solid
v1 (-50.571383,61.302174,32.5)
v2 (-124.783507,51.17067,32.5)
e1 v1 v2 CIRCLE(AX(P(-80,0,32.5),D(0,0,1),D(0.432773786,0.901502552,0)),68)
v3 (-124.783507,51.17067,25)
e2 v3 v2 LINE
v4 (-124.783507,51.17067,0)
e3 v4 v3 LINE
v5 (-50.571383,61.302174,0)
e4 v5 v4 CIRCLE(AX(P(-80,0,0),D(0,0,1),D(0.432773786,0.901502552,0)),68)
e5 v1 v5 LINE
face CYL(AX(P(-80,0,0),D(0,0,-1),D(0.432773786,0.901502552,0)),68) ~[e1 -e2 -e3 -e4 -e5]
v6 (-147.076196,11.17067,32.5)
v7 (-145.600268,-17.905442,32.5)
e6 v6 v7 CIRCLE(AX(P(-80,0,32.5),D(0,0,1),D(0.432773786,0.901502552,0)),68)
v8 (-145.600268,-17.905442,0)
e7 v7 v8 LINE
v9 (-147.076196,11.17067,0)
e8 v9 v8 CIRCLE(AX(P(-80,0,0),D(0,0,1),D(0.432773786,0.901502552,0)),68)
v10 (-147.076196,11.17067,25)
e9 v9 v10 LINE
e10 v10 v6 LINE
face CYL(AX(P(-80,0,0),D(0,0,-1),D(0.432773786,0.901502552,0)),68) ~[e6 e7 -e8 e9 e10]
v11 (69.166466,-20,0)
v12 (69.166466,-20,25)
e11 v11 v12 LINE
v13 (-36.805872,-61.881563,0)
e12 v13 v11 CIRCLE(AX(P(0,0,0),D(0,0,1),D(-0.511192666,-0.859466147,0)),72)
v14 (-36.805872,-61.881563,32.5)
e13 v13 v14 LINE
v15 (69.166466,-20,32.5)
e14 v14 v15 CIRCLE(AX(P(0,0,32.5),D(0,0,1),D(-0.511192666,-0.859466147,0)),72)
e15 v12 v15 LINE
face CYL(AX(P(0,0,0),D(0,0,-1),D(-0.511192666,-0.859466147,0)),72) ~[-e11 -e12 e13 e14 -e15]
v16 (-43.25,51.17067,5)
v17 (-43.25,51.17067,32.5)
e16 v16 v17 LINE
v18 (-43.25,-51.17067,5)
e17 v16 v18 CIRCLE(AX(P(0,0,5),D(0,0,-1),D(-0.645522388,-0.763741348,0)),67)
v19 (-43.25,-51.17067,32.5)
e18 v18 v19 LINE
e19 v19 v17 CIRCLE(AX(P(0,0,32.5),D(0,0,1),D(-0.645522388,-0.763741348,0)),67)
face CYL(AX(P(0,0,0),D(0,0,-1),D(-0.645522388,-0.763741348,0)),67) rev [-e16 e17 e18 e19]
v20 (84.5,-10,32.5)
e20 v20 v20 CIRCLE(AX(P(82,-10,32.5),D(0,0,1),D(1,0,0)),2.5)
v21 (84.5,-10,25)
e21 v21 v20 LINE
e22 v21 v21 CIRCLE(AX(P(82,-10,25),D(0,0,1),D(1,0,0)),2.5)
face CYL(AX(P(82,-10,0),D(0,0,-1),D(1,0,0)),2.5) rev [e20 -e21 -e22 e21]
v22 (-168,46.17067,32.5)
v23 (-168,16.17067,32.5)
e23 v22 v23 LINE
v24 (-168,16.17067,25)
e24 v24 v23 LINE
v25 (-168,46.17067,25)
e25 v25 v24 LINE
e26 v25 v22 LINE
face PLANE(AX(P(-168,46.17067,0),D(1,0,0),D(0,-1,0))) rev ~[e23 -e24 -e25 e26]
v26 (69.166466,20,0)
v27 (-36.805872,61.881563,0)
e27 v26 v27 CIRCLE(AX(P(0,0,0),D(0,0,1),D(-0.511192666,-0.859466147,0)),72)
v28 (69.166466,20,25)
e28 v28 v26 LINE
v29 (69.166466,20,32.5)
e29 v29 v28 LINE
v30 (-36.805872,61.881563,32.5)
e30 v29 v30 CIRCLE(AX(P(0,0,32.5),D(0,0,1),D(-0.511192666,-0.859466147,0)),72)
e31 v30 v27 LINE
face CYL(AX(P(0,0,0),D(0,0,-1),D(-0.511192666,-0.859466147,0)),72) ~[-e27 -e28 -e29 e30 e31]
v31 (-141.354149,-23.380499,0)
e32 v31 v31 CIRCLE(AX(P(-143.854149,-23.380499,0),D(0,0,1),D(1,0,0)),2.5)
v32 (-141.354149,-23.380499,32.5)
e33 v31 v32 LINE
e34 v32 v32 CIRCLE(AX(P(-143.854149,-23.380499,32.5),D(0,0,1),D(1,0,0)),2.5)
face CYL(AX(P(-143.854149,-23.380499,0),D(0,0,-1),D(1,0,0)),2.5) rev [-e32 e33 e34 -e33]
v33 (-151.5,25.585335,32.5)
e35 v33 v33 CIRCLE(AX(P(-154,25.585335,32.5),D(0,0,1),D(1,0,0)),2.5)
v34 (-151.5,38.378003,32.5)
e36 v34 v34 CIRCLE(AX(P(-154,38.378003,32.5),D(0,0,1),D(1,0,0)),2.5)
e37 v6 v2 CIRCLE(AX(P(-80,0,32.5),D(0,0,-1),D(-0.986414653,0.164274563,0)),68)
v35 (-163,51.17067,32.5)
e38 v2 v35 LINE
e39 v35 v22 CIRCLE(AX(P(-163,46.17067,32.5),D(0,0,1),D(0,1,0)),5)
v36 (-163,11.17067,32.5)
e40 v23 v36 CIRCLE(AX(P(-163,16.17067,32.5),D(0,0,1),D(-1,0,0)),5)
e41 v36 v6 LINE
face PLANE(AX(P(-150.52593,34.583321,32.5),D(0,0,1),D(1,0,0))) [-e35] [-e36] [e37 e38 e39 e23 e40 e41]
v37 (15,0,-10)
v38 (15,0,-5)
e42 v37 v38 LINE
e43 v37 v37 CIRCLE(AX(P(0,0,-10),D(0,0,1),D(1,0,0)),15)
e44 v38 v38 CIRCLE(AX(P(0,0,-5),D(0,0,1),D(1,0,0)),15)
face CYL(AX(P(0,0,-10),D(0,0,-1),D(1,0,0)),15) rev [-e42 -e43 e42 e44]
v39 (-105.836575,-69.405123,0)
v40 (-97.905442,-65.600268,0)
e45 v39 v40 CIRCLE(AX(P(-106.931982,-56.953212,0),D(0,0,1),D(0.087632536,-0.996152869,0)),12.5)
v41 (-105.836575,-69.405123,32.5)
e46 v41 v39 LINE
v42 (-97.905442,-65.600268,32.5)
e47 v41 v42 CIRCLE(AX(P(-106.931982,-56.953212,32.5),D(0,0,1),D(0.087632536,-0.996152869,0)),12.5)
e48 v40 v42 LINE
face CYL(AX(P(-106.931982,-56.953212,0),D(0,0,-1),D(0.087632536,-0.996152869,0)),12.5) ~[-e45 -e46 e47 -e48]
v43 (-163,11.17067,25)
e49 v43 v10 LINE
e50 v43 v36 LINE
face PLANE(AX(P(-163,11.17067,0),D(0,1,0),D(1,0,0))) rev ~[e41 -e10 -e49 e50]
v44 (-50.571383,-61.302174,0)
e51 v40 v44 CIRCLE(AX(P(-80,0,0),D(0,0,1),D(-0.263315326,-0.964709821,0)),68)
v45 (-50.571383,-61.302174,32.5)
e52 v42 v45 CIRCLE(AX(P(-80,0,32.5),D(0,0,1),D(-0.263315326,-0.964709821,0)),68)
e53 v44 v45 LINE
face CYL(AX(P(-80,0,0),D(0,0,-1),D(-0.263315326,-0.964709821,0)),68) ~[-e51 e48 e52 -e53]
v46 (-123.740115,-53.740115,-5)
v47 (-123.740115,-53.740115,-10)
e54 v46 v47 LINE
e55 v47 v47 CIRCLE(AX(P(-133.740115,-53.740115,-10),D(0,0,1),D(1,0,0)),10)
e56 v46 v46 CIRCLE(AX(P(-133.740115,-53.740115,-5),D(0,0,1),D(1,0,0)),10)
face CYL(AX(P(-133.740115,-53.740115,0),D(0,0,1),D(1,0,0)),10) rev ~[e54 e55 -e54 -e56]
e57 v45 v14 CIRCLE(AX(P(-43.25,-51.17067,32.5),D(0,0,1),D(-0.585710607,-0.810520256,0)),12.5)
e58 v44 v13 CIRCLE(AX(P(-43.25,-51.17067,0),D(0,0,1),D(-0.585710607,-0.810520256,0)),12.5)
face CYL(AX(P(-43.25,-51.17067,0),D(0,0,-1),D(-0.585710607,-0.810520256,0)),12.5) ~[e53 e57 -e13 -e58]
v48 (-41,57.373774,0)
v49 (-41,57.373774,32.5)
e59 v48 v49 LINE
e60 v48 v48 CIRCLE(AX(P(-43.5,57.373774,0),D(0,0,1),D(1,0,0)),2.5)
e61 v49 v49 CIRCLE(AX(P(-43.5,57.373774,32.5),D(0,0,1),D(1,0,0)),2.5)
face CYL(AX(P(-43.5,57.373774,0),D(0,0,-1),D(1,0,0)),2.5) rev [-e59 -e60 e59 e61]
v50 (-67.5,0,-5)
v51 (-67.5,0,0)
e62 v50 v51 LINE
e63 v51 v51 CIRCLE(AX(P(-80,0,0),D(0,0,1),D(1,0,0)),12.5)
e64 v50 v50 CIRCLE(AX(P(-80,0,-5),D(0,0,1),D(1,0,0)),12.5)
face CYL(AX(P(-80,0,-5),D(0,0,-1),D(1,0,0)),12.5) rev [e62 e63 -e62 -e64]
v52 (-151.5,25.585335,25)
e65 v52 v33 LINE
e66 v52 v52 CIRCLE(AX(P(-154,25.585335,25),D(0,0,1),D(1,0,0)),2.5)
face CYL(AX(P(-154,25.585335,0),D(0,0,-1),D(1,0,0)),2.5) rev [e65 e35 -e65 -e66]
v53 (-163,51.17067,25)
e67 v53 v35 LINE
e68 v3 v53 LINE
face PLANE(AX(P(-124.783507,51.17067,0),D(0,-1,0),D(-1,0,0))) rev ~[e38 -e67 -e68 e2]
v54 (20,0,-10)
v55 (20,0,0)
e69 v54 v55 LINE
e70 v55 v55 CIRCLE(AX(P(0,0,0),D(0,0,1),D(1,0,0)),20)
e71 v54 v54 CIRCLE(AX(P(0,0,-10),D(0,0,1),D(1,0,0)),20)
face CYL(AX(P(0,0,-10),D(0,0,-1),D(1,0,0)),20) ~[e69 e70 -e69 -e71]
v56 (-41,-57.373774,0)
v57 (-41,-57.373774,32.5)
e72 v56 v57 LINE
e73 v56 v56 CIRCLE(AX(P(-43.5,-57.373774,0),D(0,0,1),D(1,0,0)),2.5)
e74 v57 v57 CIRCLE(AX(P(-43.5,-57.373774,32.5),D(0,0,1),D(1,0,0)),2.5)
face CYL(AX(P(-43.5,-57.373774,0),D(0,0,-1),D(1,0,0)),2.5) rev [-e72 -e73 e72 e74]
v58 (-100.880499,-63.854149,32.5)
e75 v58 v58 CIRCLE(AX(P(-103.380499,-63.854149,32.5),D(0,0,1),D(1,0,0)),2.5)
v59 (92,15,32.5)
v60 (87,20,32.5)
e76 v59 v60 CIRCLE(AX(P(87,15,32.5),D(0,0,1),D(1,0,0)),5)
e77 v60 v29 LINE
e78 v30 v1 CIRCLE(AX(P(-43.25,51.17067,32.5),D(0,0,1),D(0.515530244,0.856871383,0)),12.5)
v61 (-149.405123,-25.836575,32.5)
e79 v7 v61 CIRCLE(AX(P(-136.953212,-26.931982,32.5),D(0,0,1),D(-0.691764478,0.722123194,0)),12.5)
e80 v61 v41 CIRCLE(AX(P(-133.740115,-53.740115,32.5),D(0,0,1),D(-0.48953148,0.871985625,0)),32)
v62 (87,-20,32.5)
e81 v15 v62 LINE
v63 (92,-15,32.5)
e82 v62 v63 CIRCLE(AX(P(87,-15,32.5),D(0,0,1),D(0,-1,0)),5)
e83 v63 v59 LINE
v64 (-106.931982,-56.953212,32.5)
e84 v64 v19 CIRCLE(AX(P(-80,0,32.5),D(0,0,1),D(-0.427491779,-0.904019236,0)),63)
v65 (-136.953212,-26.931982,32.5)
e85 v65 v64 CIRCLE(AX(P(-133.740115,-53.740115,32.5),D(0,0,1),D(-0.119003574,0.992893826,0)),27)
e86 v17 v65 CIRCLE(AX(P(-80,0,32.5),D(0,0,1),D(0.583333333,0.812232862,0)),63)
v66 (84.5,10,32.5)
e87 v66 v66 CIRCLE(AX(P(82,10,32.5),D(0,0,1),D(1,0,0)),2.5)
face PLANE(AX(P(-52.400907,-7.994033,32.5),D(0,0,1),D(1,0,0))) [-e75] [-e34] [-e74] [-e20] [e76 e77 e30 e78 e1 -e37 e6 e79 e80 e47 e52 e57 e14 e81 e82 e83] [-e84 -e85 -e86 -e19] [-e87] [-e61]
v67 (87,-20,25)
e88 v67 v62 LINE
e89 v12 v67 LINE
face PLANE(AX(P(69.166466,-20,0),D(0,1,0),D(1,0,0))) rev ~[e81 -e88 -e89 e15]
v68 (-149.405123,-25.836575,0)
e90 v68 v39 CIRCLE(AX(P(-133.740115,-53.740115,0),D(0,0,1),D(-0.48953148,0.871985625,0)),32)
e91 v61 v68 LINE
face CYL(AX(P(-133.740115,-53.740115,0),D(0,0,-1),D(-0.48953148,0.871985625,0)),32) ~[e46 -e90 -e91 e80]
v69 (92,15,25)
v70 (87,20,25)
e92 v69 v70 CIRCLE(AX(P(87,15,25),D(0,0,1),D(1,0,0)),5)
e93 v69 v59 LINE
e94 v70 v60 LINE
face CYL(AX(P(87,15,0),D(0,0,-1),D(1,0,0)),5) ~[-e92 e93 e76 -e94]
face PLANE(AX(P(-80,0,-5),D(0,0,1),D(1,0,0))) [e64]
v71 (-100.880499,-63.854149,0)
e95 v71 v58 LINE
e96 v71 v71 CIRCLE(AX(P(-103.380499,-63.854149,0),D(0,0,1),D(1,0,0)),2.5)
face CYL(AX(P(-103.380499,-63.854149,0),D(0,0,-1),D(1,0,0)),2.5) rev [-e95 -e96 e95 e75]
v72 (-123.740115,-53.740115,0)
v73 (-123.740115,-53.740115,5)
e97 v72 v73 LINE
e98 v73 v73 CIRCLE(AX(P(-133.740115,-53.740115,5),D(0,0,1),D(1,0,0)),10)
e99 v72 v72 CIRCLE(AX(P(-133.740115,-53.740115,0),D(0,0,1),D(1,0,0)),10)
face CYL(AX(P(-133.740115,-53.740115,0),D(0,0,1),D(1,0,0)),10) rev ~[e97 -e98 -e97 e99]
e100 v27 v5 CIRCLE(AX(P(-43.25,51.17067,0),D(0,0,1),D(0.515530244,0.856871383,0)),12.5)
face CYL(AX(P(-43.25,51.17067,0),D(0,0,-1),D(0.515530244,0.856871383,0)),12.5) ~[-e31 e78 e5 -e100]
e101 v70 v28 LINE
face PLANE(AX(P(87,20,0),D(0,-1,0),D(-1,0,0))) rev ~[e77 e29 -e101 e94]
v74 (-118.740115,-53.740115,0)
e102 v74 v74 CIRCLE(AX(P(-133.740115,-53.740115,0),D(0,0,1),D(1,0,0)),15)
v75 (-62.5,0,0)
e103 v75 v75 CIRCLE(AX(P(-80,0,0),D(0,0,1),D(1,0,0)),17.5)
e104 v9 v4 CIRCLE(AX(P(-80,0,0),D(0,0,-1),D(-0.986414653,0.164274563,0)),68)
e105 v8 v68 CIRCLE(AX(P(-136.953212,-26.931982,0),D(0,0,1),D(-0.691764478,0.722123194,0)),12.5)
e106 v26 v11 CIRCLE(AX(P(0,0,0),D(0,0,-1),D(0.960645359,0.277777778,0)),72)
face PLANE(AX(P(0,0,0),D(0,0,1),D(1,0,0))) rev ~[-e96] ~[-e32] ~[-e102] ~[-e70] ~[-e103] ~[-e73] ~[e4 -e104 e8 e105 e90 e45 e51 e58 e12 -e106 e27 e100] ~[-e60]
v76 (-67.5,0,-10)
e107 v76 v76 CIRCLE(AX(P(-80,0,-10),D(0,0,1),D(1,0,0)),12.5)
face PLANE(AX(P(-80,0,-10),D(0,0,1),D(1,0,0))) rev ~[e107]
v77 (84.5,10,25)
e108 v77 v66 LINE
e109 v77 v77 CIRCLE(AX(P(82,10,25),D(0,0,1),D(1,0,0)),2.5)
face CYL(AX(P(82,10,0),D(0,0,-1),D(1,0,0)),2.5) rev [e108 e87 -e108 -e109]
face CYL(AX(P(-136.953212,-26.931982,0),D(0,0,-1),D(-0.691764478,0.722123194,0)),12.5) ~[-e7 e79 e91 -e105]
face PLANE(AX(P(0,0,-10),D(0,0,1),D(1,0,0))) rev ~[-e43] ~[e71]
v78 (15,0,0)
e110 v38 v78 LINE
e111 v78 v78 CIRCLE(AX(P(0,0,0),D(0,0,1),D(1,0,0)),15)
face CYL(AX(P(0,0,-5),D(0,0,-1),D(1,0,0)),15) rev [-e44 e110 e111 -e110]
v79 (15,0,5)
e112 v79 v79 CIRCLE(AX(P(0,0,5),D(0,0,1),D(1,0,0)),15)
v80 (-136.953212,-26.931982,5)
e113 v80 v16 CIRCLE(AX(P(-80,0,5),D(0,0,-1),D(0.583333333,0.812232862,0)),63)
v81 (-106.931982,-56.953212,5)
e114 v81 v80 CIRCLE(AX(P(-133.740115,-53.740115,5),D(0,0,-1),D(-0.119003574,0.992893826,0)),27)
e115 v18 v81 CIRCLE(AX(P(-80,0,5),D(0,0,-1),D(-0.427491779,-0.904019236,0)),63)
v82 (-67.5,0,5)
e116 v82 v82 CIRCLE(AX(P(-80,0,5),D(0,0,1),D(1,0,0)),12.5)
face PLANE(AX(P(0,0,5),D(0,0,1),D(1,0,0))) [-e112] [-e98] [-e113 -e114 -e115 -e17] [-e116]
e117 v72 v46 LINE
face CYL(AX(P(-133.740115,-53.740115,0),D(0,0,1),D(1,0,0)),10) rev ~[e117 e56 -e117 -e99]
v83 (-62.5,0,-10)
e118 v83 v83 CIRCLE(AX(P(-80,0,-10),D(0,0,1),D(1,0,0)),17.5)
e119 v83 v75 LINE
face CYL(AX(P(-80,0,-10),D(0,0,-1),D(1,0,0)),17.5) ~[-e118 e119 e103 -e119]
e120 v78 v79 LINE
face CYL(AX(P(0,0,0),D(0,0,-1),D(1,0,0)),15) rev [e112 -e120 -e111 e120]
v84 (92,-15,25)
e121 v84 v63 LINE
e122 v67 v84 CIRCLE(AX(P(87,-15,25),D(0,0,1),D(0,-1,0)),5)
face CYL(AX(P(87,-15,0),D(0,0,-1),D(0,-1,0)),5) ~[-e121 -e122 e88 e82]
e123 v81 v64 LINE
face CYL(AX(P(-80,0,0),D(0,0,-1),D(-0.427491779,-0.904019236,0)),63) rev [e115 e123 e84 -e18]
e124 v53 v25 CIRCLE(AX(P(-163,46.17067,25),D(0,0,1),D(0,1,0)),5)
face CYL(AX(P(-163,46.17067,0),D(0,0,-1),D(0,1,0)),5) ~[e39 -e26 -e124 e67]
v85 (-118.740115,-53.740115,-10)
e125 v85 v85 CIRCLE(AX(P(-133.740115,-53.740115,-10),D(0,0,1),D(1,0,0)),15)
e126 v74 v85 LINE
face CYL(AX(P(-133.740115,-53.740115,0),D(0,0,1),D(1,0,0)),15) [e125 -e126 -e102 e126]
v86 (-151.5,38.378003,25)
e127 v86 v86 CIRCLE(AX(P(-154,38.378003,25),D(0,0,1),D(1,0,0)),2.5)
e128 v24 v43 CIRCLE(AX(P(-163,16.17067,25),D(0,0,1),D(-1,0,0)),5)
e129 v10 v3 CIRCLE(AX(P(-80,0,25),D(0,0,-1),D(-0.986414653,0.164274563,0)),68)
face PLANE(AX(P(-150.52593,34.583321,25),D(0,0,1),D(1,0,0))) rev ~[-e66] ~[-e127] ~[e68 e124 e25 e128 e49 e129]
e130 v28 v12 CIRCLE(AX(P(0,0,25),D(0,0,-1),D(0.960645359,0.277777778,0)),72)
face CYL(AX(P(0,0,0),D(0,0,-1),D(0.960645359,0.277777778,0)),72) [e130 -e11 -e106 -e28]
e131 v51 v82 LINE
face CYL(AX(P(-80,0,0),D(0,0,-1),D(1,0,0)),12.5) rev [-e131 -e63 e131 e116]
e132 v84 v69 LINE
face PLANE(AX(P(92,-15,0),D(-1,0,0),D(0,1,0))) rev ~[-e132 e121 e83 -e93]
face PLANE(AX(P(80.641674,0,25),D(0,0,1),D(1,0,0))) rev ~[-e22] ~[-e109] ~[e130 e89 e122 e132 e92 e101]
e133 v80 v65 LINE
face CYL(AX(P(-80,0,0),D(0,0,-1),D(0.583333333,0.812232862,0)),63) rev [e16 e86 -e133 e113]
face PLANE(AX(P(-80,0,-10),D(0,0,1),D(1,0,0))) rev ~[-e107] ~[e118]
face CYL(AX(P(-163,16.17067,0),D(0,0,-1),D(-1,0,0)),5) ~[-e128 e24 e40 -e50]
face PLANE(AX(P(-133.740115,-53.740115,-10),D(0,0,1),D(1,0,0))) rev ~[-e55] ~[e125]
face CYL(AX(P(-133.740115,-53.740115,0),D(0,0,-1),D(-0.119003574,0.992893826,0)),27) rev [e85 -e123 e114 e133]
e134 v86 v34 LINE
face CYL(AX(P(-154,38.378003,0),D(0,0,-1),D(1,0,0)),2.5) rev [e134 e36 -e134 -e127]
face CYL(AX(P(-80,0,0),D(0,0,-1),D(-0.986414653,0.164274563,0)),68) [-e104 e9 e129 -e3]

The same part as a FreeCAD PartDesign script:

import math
import FreeCAD as App
import Part
import Sketcher

doc = App.newDocument("Part")
params = doc.addObject("Spreadsheet::Sheet", "Params")
for row, (alias, value) in enumerate([
    ("sketch1_diameter", "5 mm"),
    ("sketch1_diameter2", "25 mm"),
    ("sketch1_diameter3", "30 mm"),
    ("sketch1_radius", "68 mm"),
    ("sketch1_radius2", "72 mm"),
    ("pad1_length", "5 mm"),
    ("sketch2_diameter", "5 mm"),
    ("sketch2_radius", "68 mm"),
    ("sketch2_radius2", "72 mm"),
    ("sketch2_radius3", "5 mm"),
    ("sketch2_radius4", "32 mm"),
    ("pad2_length", "32.5 mm"),
    ("sketch3_diameter", "5 mm"),
    ("sketch3_radius", "5 mm"),
    ("sketch3_radius2", "72 mm"),
    ("sketch3_height", "30 mm"),
    ("pocket1_length", "25 mm"),
    ("sketch4_diameter", "35 mm"),
    ("sketch4_diameter2", "40 mm"),
    ("pad3_length", "10 mm"),
    ("sketch5_diameter", "25 mm"),
    ("sketch5_diameter2", "30 mm"),
    ("pocket2_length", "5 mm"),
    ("sketch6_diameter", "30 mm"),
    ("sketch6_diameter2", "20 mm"),
    ("pad4_length", "10 mm"),
    ("sketch7_diameter", "20 mm"),
    ("pocket3_length", "10 mm"),
    ("sketch8_diameter", "30 mm"),
    ("pocket4_length", "10 mm"),
    ("sketch9_diameter", "5 mm"),
    ("sketch9_radius", "68 mm"),
    ("sketch9_radius2", "5 mm"),
    ("sketch9_height", "30 mm"),
    ("pad5_length", "32.5 mm"),
    ("sketch10_diameter", "5 mm"),
    ("sketch10_radius", "68 mm"),
    ("sketch10_radius2", "5 mm"),
    ("sketch10_height", "30 mm"),
    ("pocket5_length", "25 mm"),
], start=1):
    params.set(f"A{row}", alias)
    params.set(f"B{row}", "=" + value)
    params.setAlias(f"B{row}", alias)

body = doc.addObject("PartDesign::Body", "Body")

sketch1 = body.newObject("Sketcher::SketchObject", "Sketch")
sketch1.AttachmentSupport = (doc.getObject("XY_Plane"), [""])
sketch1.MapMode = "FlatFace"
sketch1.addGeometry([
    Part.ArcOfCircle(Part.Circle(App.Vector(-106.931982, -56.953212, 0), App.Vector(0, 0, 1), 12.5), math.radians(-84.972577), math.radians(-43.769945)),
    Part.ArcOfCircle(Part.Circle(App.Vector(-80, 0, 0), App.Vector(0, 0, 1), 68), math.radians(-105.266873), math.radians(-64.356279)),
    Part.ArcOfCircle(Part.Circle(App.Vector(-43.25, -51.17067, 0), App.Vector(0, 0, 1), 12.5), math.radians(-125.853207), math.radians(-58.967096)),
    Part.ArcOfCircle(Part.Circle(App.Vector(0, 0, 0), App.Vector(0, 0, 1), 72), math.radians(-120.743305), math.radians(120.743305)),
    Part.ArcOfCircle(Part.Circle(App.Vector(-43.25, 51.17067, 0), App.Vector(0, 0, 1), 12.5), math.radians(58.967096), math.radians(125.853207)),
    Part.ArcOfCircle(Part.Circle(App.Vector(-80, 0, 0), App.Vector(0, 0, 1), 68), math.radians(64.356279), math.radians(195.266873)),
    Part.ArcOfCircle(Part.Circle(App.Vector(-136.953212, -26.931982, 0), App.Vector(0, 0, 1), 12.5), math.radians(133.769945), math.radians(174.972577)),
    Part.ArcOfCircle(Part.Circle(App.Vector(-133.740115, -53.740115, 0), App.Vector(0, 0, 1), 32), math.radians(119.309792), math.radians(330.690208)),
    Part.Circle(App.Vector(-103.380499, -63.854149, 0), App.Vector(0, 0, 1), 2.5),
    Part.Circle(App.Vector(-143.854149, -23.380499, 0), App.Vector(0, 0, 1), 2.5),
    Part.Circle(App.Vector(-43.5, -57.373774, 0), App.Vector(0, 0, 1), 2.5),
    Part.Circle(App.Vector(-43.5, 57.373774, 0), App.Vector(0, 0, 1), 2.5),
    Part.Circle(App.Vector(-80, 0, 0), App.Vector(0, 0, 1), 12.5),
    Part.Circle(App.Vector(0, 0, 0), App.Vector(0, 0, 1), 15),
], False)
sketch1.addConstraint([
    Sketcher.Constraint("Coincident", 0, 2, 1, 1),
    Sketcher.Constraint("Coincident", 1, 2, 2, 1),
    Sketcher.Constraint("Coincident", 2, 2, 3, 1),
    Sketcher.Constraint("Coincident", 3, 2, 4, 1),
    Sketcher.Constraint("Coincident", 4, 2, 5, 1),
    Sketcher.Constraint("Coincident", 5, 2, 6, 1),
    Sketcher.Constraint("Coincident", 6, 2, 7, 1),
    Sketcher.Constraint("Coincident", 7, 2, 0, 1),
    Sketcher.Constraint("Coincident", 3, 3, -1, 1),
    Sketcher.Constraint("Coincident", 13, 3, -1, 1),
    Sketcher.Constraint("Coincident", 5, 3, 1, 3),
    Sketcher.Constraint("Coincident", 12, 3, 1, 3),
    Sketcher.Constraint("Equal", 0, 2),
    Sketcher.Constraint("Equal", 2, 4),
    Sketcher.Constraint("Equal", 1, 5),
    Sketcher.Constraint("Equal", 4, 6),
    Sketcher.Constraint("Equal", 8, 9),
    Sketcher.Constraint("Equal", 9, 10),
    Sketcher.Constraint("Equal", 10, 11),
    Sketcher.Constraint("Equal", 6, 12),
    Sketcher.Constraint("Symmetric", 2, 3, 4, 3, -1),
    Sketcher.Constraint("Symmetric", 10, 3, 11, 3, -1),
    Sketcher.Constraint("PointOnObject", 1, 3, -1),
    Sketcher.Constraint("Diameter", 8, 5.0),
    Sketcher.Constraint("Diameter", 12, 25.0),
    Sketcher.Constraint("Diameter", 13, 30.0),
    Sketcher.Constraint("Radius", 1, 68.0),
    Sketcher.Constraint("Radius", 3, 72.0),
    Sketcher.Constraint("Radius", 7, 32.0),
    Sketcher.Constraint("DistanceX", 1, 3, -1, 1, 80.0),
    Sketcher.Constraint("DistanceX", 10, 3, -1, 1, 43.5),
    Sketcher.Constraint("DistanceX", 2, 3, -1, 1, 43.25),
    Sketcher.Constraint("DistanceX", 8, 3, -1, 1, 103.380499),
    Sketcher.Constraint("DistanceY", 9, 3, -1, 1, 23.380499),
    Sketcher.Constraint("DistanceY", 1, 2, 10, 3, 3.928399),
    Sketcher.Constraint("DistanceX", 0, 3, 1, 2, 56.360599),
    Sketcher.Constraint("DistanceY", 0, 3, -1, 1, 56.953212),
    Sketcher.Constraint("DistanceY", 2, 3, -1, 1, 51.17067),
    Sketcher.Constraint("DistanceX", 6, 3, -1, 1, 136.953212),
    Sketcher.Constraint("DistanceY", 8, 3, -1, 1, 63.854149),
    Sketcher.Constraint("DistanceX", 9, 3, -1, 1, 143.854149),
    Sketcher.Constraint("DistanceY", 0, 3, 6, 3, 30.02123),
    Sketcher.Constraint("DistanceX", 6, 2, 6, 3, 12.451911),
    Sketcher.Constraint("DistanceY", 7, 3, 6, 2, 27.90354),
])
sketch1.setExpression("Constraints[23]", "Params.sketch1_diameter")
sketch1.setExpression("Constraints[24]", "Params.sketch1_diameter2")
sketch1.setExpression("Constraints[25]", "Params.sketch1_diameter3")
sketch1.setExpression("Constraints[26]", "Params.sketch1_radius")
sketch1.setExpression("Constraints[27]", "Params.sketch1_radius2")
pad1 = body.newObject("PartDesign::Pad", "Pad")
pad1.Profile = sketch1
pad1.setExpression("Length", "Params.pad1_length")

sketch2 = body.newObject("Sketcher::SketchObject", "Sketch001")
sketch2.AttachmentSupport = (doc.getObject("XY_Plane"), [""])
sketch2.MapMode = "FlatFace"
sketch2.addGeometry([
    Part.ArcOfCircle(Part.Circle(App.Vector(-106.931982, -56.953212, 0), App.Vector(0, 0, 1), 12.5), math.radians(-84.972577), math.radians(-43.769945)),
    Part.ArcOfCircle(Part.Circle(App.Vector(-80, 0, 0), App.Vector(0, 0, 1), 68), math.radians(-105.266873), math.radians(-64.356279)),
    Part.ArcOfCircle(Part.Circle(App.Vector(-43.25, -51.17067, 0), App.Vector(0, 0, 1), 12.5), math.radians(-125.853207), math.radians(-58.967096)),
    Part.ArcOfCircle(Part.Circle(App.Vector(0, 0, 0), App.Vector(0, 0, 1), 72), math.radians(-120.743305), math.radians(-16.12762)),
    Part.LineSegment(App.Vector(69.166466, -20, 0), App.Vector(87, -20, 0)),
    Part.ArcOfCircle(Part.Circle(App.Vector(87, -15, 0), App.Vector(0, 0, 1), 5), math.radians(-90), math.radians(0)),
    Part.LineSegment(App.Vector(92, -15, 0), App.Vector(92, 15, 0)),
    Part.ArcOfCircle(Part.Circle(App.Vector(87, 15, 0), App.Vector(0, 0, 1), 5), math.radians(0), math.radians(90)),
    Part.LineSegment(App.Vector(87, 20, 0), App.Vector(69.166466, 20, 0)),
    Part.ArcOfCircle(Part.Circle(App.Vector(0, 0, 0), App.Vector(0, 0, 1), 72), math.radians(16.12762), math.radians(120.743305)),
    Part.ArcOfCircle(Part.Circle(App.Vector(-43.25, 51.17067, 0), App.Vector(0, 0, 1), 12.5), math.radians(58.967096), math.radians(125.853207)),
    Part.ArcOfCircle(Part.Circle(App.Vector(-80, 0, 0), App.Vector(0, 0, 1), 68), math.radians(64.356279), math.radians(195.266873)),
    Part.ArcOfCircle(Part.Circle(App.Vector(-136.953212, -26.931982, 0), App.Vector(0, 0, 1), 12.5), math.radians(133.769945), math.radians(174.972577)),
    Part.ArcOfCircle(Part.Circle(App.Vector(-133.740115, -53.740115, 0), App.Vector(0, 0, 1), 32), math.radians(119.309792), math.radians(330.690208)),
    Part.Circle(App.Vector(-103.380499, -63.854149, 0), App.Vector(0, 0, 1), 2.5),
    Part.Circle(App.Vector(-143.854149, -23.380499, 0), App.Vector(0, 0, 1), 2.5),
    Part.Circle(App.Vector(-43.5, -57.373774, 0), App.Vector(0, 0, 1), 2.5),
    Part.ArcOfCircle(Part.Circle(App.Vector(-80, 0, 0), App.Vector(0, 0, 1), 63), math.radians(-115.308487), math.radians(-54.314665)),
    Part.ArcOfCircle(Part.Circle(App.Vector(-133.740115, -53.740115, 0), App.Vector(0, 0, 1), 27), math.radians(96.834599), math.radians(353.165401)),
    Part.ArcOfCircle(Part.Circle(App.Vector(-80, 0, 0), App.Vector(0, 0, 1), 63), math.radians(54.314665), math.radians(205.308487)),
    Part.ArcOfCircle(Part.Circle(App.Vector(0, 0, 0), App.Vector(0, 0, 1), 67), math.radians(-130.204854), math.radians(130.204854)),
    Part.Circle(App.Vector(-43.5, 57.373774, 0), App.Vector(0, 0, 1), 2.5),
    Part.Circle(App.Vector(82, 10, 0), App.Vector(0, 0, 1), 2.5),
    Part.Circle(App.Vector(82, -10, 0), App.Vector(0, 0, 1), 2.5),
], False)
sketch2.addConstraint([
    Sketcher.Constraint("Coincident", 0, 2, 1, 1),
    Sketcher.Constraint("Coincident", 1, 2, 2, 1),
    Sketcher.Constraint("Coincident", 2, 2, 3, 1),
    Sketcher.Constraint("Coincident", 3, 2, 4, 1),
    Sketcher.Constraint("Tangent", 4, 2, 5, 1),
    Sketcher.Constraint("Tangent", 5, 2, 6, 1),
    Sketcher.Constraint("Tangent", 6, 2, 7, 1),
    Sketcher.Constraint("Tangent", 7, 2, 8, 1),
    Sketcher.Constraint("Coincident", 8, 2, 9, 1),
    Sketcher.Constraint("Coincident", 9, 2, 10, 1),
    Sketcher.Constraint("Coincident", 10, 2, 11, 1),
    Sketcher.Constraint("Coincident", 11, 2, 12, 1),
    Sketcher.Constraint("Coincident", 12, 2, 13, 1),
    Sketcher.Constraint("Coincident", 13, 2, 0, 1),
    Sketcher.Constraint("Coincident", 17, 1, 18, 2),
    Sketcher.Constraint("Coincident", 18, 1, 19, 2),
    Sketcher.Constraint("Coincident", 19, 1, 20, 2),
    Sketcher.Constraint("Coincident", 20, 1, 17, 2),
    Sketcher.Constraint("Horizontal", 4),
    Sketcher.Constraint("Vertical", 6),
    Sketcher.Constraint("Horizontal", 8),
    Sketcher.Constraint("Coincident", 3, 3, -1, 1),
    Sketcher.Constraint("Coincident", 9, 3, -1, 1),
    Sketcher.Constraint("Coincident", 20, 3, -1, 1),
    Sketcher.Constraint("Coincident", 11, 3, 1, 3),
    Sketcher.Constraint("Coincident", 17, 3, 1, 3),
    Sketcher.Constraint("Coincident", 18, 3, 13, 3),
    Sketcher.Constraint("Coincident", 19, 3, 1, 3),
    Sketcher.Constraint("Coincident", 17, 1, 0, 3),
    Sketcher.Constraint("Coincident", 18, 1, 12, 3),
    Sketcher.Constraint("Coincident", 19, 1, 10, 3),
    Sketcher.Constraint("Coincident", 20, 1, 2, 3),
    Sketcher.Constraint("Equal", 0, 2),
    Sketcher.Constraint("Equal", 5, 7),
    Sketcher.Constraint("Equal", 3, 9),
    Sketcher.Constraint("Equal", 2, 10),
    Sketcher.Constraint("Equal", 1, 11),
    Sketcher.Constraint("Equal", 10, 12),
    Sketcher.Constraint("Equal", 14, 15),
    Sketcher.Constraint("Equal", 15, 16),
    Sketcher.Constraint("Equal", 17, 19),
    Sketcher.Constraint("Equal", 16, 21),
    Sketcher.Constraint("Equal", 21, 22),
    Sketcher.Constraint("Equal", 22, 23),
    Sketcher.Constraint("Symmetric", 16, 3, 21, 3, -1),
    Sketcher.Constraint("Symmetric", 22, 3, 23, 3, -1),
    Sketcher.Constraint("PointOnObject", 1, 3, -1),
    Sketcher.Constraint("Vertical", 3, 2, 8, 2),
    Sketcher.Constraint("Diameter", 14, 5.0),
    Sketcher.Constraint("Radius", 1, 68.0),
    Sketcher.Constraint("Radius", 3, 72.0),
    Sketcher.Constraint("Radius", 5, 5.0),
    Sketcher.Constraint("Radius", 13, 32.0),
    Sketcher.Constraint("Radius", 17, 63.0),
    Sketcher.Constraint("Radius", 18, 27.0),
    Sketcher.Constraint("Radius", 20, 67.0),
    Sketcher.Constraint("Radius", 0, 12.5),
    Sketcher.Constraint("DistanceY", 6, 1, 6, 2, 30.0),
    Sketcher.Constraint("DistanceX", 1, 3, -1, 1, 80.0),
    Sketcher.Constraint("DistanceX", -1, 1, 5, 3, 87.0),
    Sketcher.Constraint("DistanceX", -1, 1, 22, 3, 82.0),
    Sketcher.Constraint("DistanceY", -1, 1, 22, 3, 10.0),
    Sketcher.Constraint("DistanceX", 16, 3, -1, 1, 43.5),
    Sketcher.Constraint("DistanceX", 14, 3, -1, 1, 103.380499),
    Sketcher.Constraint("DistanceY", 15, 3, -1, 1, 23.380499),
    Sketcher.Constraint("DistanceY", 1, 2, 16, 3, 3.928399),
    Sketcher.Constraint("DistanceX", 0, 3, 1, 2, 56.360599),
    Sketcher.Constraint("DistanceX", 12, 3, -1, 1, 136.953212),
    Sketcher.Constraint("DistanceY", 14, 3, -1, 1, 63.854149),
    Sketcher.Constraint("DistanceX", 15, 3, -1, 1, 143.854149),
])
sketch2.setExpression("Constraints[48]", "Params.sketch2_diameter")
sketch2.setExpression("Constraints[49]", "Params.sketch2_radius")
sketch2.setExpression("Constraints[50]", "Params.sketch2_radius2")
sketch2.setExpression("Constraints[51]", "Params.sketch2_radius3")
sketch2.setExpression("Constraints[52]", "Params.sketch2_radius4")
pad2 = body.newObject("PartDesign::Pad", "Pad001")
pad2.Profile = sketch2
pad2.setExpression("Length", "Params.pad2_length")

sketch3 = body.newObject("Sketcher::SketchObject", "Sketch002")
sketch3.AttachmentSupport = (doc.getObject("XY_Plane"), [""])
sketch3.MapMode = "FlatFace"
sketch3.addGeometry([
    Part.LineSegment(App.Vector(92, -15, 0), App.Vector(92, 15, 0)),
    Part.ArcOfCircle(Part.Circle(App.Vector(87, 15, 0), App.Vector(0, 0, 1), 5), math.radians(0), math.radians(90)),
    Part.LineSegment(App.Vector(87, 20, 0), App.Vector(69.166466, 20, 0)),
    Part.ArcOfCircle(Part.Circle(App.Vector(0, 0, 0), App.Vector(0, 0, 1), 72), math.radians(-16.12762), math.radians(16.12762)),
    Part.LineSegment(App.Vector(69.166466, -20, 0), App.Vector(87, -20, 0)),
    Part.ArcOfCircle(Part.Circle(App.Vector(87, -15, 0), App.Vector(0, 0, 1), 5), math.radians(-90), math.radians(0)),
    Part.Circle(App.Vector(82, -10, 0), App.Vector(0, 0, 1), 2.5),
    Part.Circle(App.Vector(82, 10, 0), App.Vector(0, 0, 1), 2.5),
], False)
sketch3.addConstraint([
    Sketcher.Constraint("Tangent", 0, 2, 1, 1),
    Sketcher.Constraint("Tangent", 1, 2, 2, 1),
    Sketcher.Constraint("Coincident", 2, 2, 3, 2),
    Sketcher.Constraint("Coincident", 3, 1, 4, 1),
    Sketcher.Constraint("Tangent", 4, 2, 5, 1),
    Sketcher.Constraint("Tangent", 5, 2, 0, 1),
    Sketcher.Constraint("Vertical", 0),
    Sketcher.Constraint("Horizontal", 2),
    Sketcher.Constraint("Horizontal", 4),
    Sketcher.Constraint("Coincident", 3, 3, -1, 1),
    Sketcher.Constraint("Equal", 1, 5),
    Sketcher.Constraint("Equal", 6, 7),
    Sketcher.Constraint("Symmetric", 6, 3, 7, 3, -1),
    Sketcher.Constraint("Vertical", 2, 2, 3, 1),
    Sketcher.Constraint("Diameter", 6, 5.0),
    Sketcher.Constraint("Radius", 1, 5.0),
    Sketcher.Constraint("Radius", 3, 72.0),
    Sketcher.Constraint("DistanceY", 0, 1, 0, 2, 30.0),
    Sketcher.Constraint("DistanceX", -1, 1, 1, 3, 87.0),
    Sketcher.Constraint("DistanceX", -1, 1, 6, 3, 82.0),
    Sketcher.Constraint("DistanceY", 6, 3, -1, 1, 10.0),
])
sketch3.setExpression("Constraints[14]", "Params.sketch3_diameter")
sketch3.setExpression("Constraints[15]", "Params.sketch3_radius")
sketch3.setExpression("Constraints[16]", "Params.sketch3_radius2")
sketch3.setExpression("Constraints[17]", "Params.sketch3_height")
pocket1 = body.newObject("PartDesign::Pocket", "Pocket")
pocket1.Profile = sketch3
pocket1.setExpression("Length", "Params.pocket1_length")
pocket1.Reversed = True

sketch4 = body.newObject("Sketcher::SketchObject", "Sketch003")
sketch4.AttachmentSupport = (doc.getObject("XY_Plane"), [""])
sketch4.MapMode = "FlatFace"
sketch4.AttachmentOffset = App.Placement(App.Vector(0, 0, -10), App.Rotation())
sketch4.addGeometry([
    Part.Circle(App.Vector(-80, 0, 0), App.Vector(0, 0, 1), 17.5),
    Part.Circle(App.Vector(0, 0, 0), App.Vector(0, 0, 1), 20),
], False)
sketch4.addConstraint([
    Sketcher.Constraint("Coincident", 1, 3, -1, 1),
    Sketcher.Constraint("PointOnObject", 0, 3, -1),
    Sketcher.Constraint("Diameter", 0, 35.0),
    Sketcher.Constraint("Diameter", 1, 40.0),
    Sketcher.Constraint("DistanceX", 0, 3, -1, 1, 80.0),
])
sketch4.setExpression("Constraints[2]", "Params.sketch4_diameter")
sketch4.setExpression("Constraints[3]", "Params.sketch4_diameter2")
pad3 = body.newObject("PartDesign::Pad", "Pad002")
pad3.Profile = sketch4
pad3.setExpression("Length", "Params.pad3_length")

sketch5 = body.newObject("Sketcher::SketchObject", "Sketch004")
sketch5.AttachmentSupport = (doc.getObject("XY_Plane"), [""])
sketch5.MapMode = "FlatFace"
sketch5.AttachmentOffset = App.Placement(App.Vector(0, 0, -5), App.Rotation())
sketch5.addGeometry([
    Part.Circle(App.Vector(-80, 0, 0), App.Vector(0, 0, 1), 12.5),
    Part.Circle(App.Vector(0, 0, 0), App.Vector(0, 0, 1), 15),
], False)
sketch5.addConstraint([
    Sketcher.Constraint("Coincident", 1, 3, -1, 1),
    Sketcher.Constraint("PointOnObject", 0, 3, -1),
    Sketcher.Constraint("Diameter", 0, 25.0),
    Sketcher.Constraint("Diameter", 1, 30.0),
    Sketcher.Constraint("DistanceX", 0, 3, -1, 1, 80.0),
])
sketch5.setExpression("Constraints[2]", "Params.sketch5_diameter")
sketch5.setExpression("Constraints[3]", "Params.sketch5_diameter2")
pocket2 = body.newObject("PartDesign::Pocket", "Pocket001")
pocket2.Profile = sketch5
pocket2.setExpression("Length", "Params.pocket2_length")
pocket2.Reversed = True

sketch6 = body.newObject("Sketcher::SketchObject", "Sketch005")
sketch6.AttachmentSupport = (doc.getObject("XY_Plane"), [""])
sketch6.MapMode = "FlatFace"
sketch6.addGeometry([
    Part.Circle(App.Vector(-133.740115, -53.740115, 0), App.Vector(0, 0, 1), 15),
    Part.Circle(App.Vector(-133.740115, -53.740115, 0), App.Vector(0, 0, 1), 10),
], False)
sketch6.addConstraint([
    Sketcher.Constraint("Coincident", 1, 3, 0, 3),
    Sketcher.Constraint("Diameter", 0, 30.0),
    Sketcher.Constraint("Diameter", 1, 20.0),
    Sketcher.Constraint("DistanceX", 0, 3, -1, 1, 133.740115),
    Sketcher.Constraint("DistanceY", 0, 3, -1, 1, 53.740115),
])
sketch6.setExpression("Constraints[1]", "Params.sketch6_diameter")
sketch6.setExpression("Constraints[2]", "Params.sketch6_diameter2")
pad4 = body.newObject("PartDesign::Pad", "Pad003")
pad4.Profile = sketch6
pad4.setExpression("Length", "Params.pad4_length")
pad4.Reversed = True

sketch7 = body.newObject("Sketcher::SketchObject", "Sketch006")
sketch7.AttachmentSupport = (doc.getObject("XY_Plane"), [""])
sketch7.MapMode = "FlatFace"
sketch7.addGeometry(Part.Circle(App.Vector(-133.740115, -53.740115, 0), App.Vector(0, 0, 1), 10), False)
sketch7.addConstraint([
    Sketcher.Constraint("Diameter", 0, 20.0),
    Sketcher.Constraint("DistanceX", 0, 3, -1, 1, 133.740115),
    Sketcher.Constraint("DistanceY", 0, 3, -1, 1, 53.740115),
])
sketch7.setExpression("Constraints[0]", "Params.sketch7_diameter")
pocket3 = body.newObject("PartDesign::Pocket", "Pocket002")
pocket3.Profile = sketch7
pocket3.setExpression("Length", "Params.pocket3_length")
pocket3.Midplane = True

sketch8 = body.newObject("Sketcher::SketchObject", "Sketch007")
sketch8.AttachmentSupport = (doc.getObject("XY_Plane"), [""])
sketch8.MapMode = "FlatFace"
sketch8.AttachmentOffset = App.Placement(App.Vector(0, 0, -10), App.Rotation())
sketch8.addGeometry(Part.Circle(App.Vector(0, 0, 0), App.Vector(0, 0, 1), 15), False)
sketch8.addConstraint([
    Sketcher.Constraint("Coincident", 0, 3, -1, 1),
    Sketcher.Constraint("Diameter", 0, 30.0),
])
sketch8.setExpression("Constraints[1]", "Params.sketch8_diameter")
pocket4 = body.newObject("PartDesign::Pocket", "Pocket003")
pocket4.Profile = sketch8
pocket4.setExpression("Length", "Params.pocket4_length")
pocket4.Reversed = True

sketch9 = body.newObject("Sketcher::SketchObject", "Sketch008")
sketch9.AttachmentSupport = (doc.getObject("XY_Plane"), [""])
sketch9.MapMode = "FlatFace"
sketch9.addGeometry([
    Part.ArcOfCircle(Part.Circle(App.Vector(-80, 0, 0), App.Vector(0, 0, 1), 68), math.radians(131.19174), math.radians(170.544905)),
    Part.LineSegment(App.Vector(-124.783507, 51.17067, 0), App.Vector(-163, 51.17067, 0)),
    Part.ArcOfCircle(Part.Circle(App.Vector(-163, 46.17067, 0), App.Vector(0, 0, 1), 5), math.radians(90), math.radians(180)),
    Part.LineSegment(App.Vector(-168, 46.17067, 0), App.Vector(-168, 16.17067, 0)),
    Part.ArcOfCircle(Part.Circle(App.Vector(-163, 16.17067, 0), App.Vector(0, 0, 1), 5), math.radians(180), math.radians(270)),
    Part.LineSegment(App.Vector(-163, 11.17067, 0), App.Vector(-147.076196, 11.17067, 0)),
    Part.Circle(App.Vector(-154, 25.585335, 0), App.Vector(0, 0, 1), 2.5),
    Part.Circle(App.Vector(-154, 38.378003, 0), App.Vector(0, 0, 1), 2.5),
], False)
sketch9.addConstraint([
    Sketcher.Constraint("Coincident", 0, 1, 1, 1),
    Sketcher.Constraint("Tangent", 1, 2, 2, 1),
    Sketcher.Constraint("Tangent", 2, 2, 3, 1),
    Sketcher.Constraint("Tangent", 3, 2, 4, 1),
    Sketcher.Constraint("Tangent", 4, 2, 5, 1),
    Sketcher.Constraint("Coincident", 5, 2, 0, 2),
    Sketcher.Constraint("Horizontal", 1),
    Sketcher.Constraint("Vertical", 3),
    Sketcher.Constraint("Horizontal", 5),
    Sketcher.Constraint("Equal", 2, 4),
    Sketcher.Constraint("Equal", 6, 7),
    Sketcher.Constraint("PointOnObject", 0, 3, -1),
    Sketcher.Constraint("Vertical", 6, 3, 7, 3),
    Sketcher.Constraint("Diameter", 6, 5.0),
    Sketcher.Constraint("Radius", 0, 68.0),
    Sketcher.Constraint("Radius", 2, 5.0),
    Sketcher.Constraint("DistanceY", 3, 2, 3, 1, 30.0),
    Sketcher.Constraint("DistanceX", 0, 3, -1, 1, 80.0),
    Sketcher.Constraint("DistanceX", 2, 3, -1, 1, 163.0),
    Sketcher.Constraint("DistanceX", 6, 3, -1, 1, 154.0),
    Sketcher.Constraint("DistanceX", 1, 2, 1, 1, 38.216493),
    Sketcher.Constraint("DistanceY", -1, 1, 6, 3, 25.585335),
    Sketcher.Constraint("DistanceY", -1, 1, 7, 3, 38.378003),
])
sketch9.setExpression("Constraints[13]", "Params.sketch9_diameter")
sketch9.setExpression("Constraints[14]", "Params.sketch9_radius")
sketch9.setExpression("Constraints[15]", "Params.sketch9_radius2")
sketch9.setExpression("Constraints[16]", "Params.sketch9_height")
pad5 = body.newObject("PartDesign::Pad", "Pad004")
pad5.Profile = sketch9
pad5.setExpression("Length", "Params.pad5_length")

sketch10 = body.newObject("Sketcher::SketchObject", "Sketch009")
sketch10.AttachmentSupport = (doc.getObject("XY_Plane"), [""])
sketch10.MapMode = "FlatFace"
sketch10.addGeometry([
    Part.ArcOfCircle(Part.Circle(App.Vector(-80, 0, 0), App.Vector(0, 0, 1), 68), math.radians(131.19174), math.radians(170.544905)),
    Part.LineSegment(App.Vector(-124.783507, 51.17067, 0), App.Vector(-163, 51.17067, 0)),
    Part.ArcOfCircle(Part.Circle(App.Vector(-163, 46.17067, 0), App.Vector(0, 0, 1), 5), math.radians(90), math.radians(180)),
    Part.LineSegment(App.Vector(-168, 46.17067, 0), App.Vector(-168, 16.17067, 0)),
    Part.ArcOfCircle(Part.Circle(App.Vector(-163, 16.17067, 0), App.Vector(0, 0, 1), 5), math.radians(180), math.radians(270)),
    Part.LineSegment(App.Vector(-163, 11.17067, 0), App.Vector(-147.076196, 11.17067, 0)),
    Part.Circle(App.Vector(-154, 25.585335, 0), App.Vector(0, 0, 1), 2.5),
    Part.Circle(App.Vector(-154, 38.378003, 0), App.Vector(0, 0, 1), 2.5),
], False)
sketch10.addConstraint([
    Sketcher.Constraint("Coincident", 0, 1, 1, 1),
    Sketcher.Constraint("Tangent", 1, 2, 2, 1),
    Sketcher.Constraint("Tangent", 2, 2, 3, 1),
    Sketcher.Constraint("Tangent", 3, 2, 4, 1),
    Sketcher.Constraint("Tangent", 4, 2, 5, 1),
    Sketcher.Constraint("Coincident", 5, 2, 0, 2),
    Sketcher.Constraint("Horizontal", 1),
    Sketcher.Constraint("Vertical", 3),
    Sketcher.Constraint("Horizontal", 5),
    Sketcher.Constraint("Equal", 2, 4),
    Sketcher.Constraint("Equal", 6, 7),
    Sketcher.Constraint("PointOnObject", 0, 3, -1),
    Sketcher.Constraint("Vertical", 6, 3, 7, 3),
    Sketcher.Constraint("Diameter", 6, 5.0),
    Sketcher.Constraint("Radius", 0, 68.0),
    Sketcher.Constraint("Radius", 2, 5.0),
    Sketcher.Constraint("DistanceY", 3, 2, 3, 1, 30.0),
    Sketcher.Constraint("DistanceX", 0, 3, -1, 1, 80.0),
    Sketcher.Constraint("DistanceX", 2, 3, -1, 1, 163.0),
    Sketcher.Constraint("DistanceX", 6, 3, -1, 1, 154.0),
    Sketcher.Constraint("DistanceX", 1, 2, 1, 1, 38.216493),
    Sketcher.Constraint("DistanceY", -1, 1, 6, 3, 25.585335),
    Sketcher.Constraint("DistanceY", -1, 1, 7, 3, 38.378003),
])
sketch10.setExpression("Constraints[13]", "Params.sketch10_diameter")
sketch10.setExpression("Constraints[14]", "Params.sketch10_radius")
sketch10.setExpression("Constraints[15]", "Params.sketch10_radius2")
sketch10.setExpression("Constraints[16]", "Params.sketch10_height")
pocket5 = body.newObject("PartDesign::Pocket", "Pocket004")
pocket5.Profile = sketch10
pocket5.setExpression("Length", "Params.pocket5_length")
pocket5.Reversed = True

doc.recompute()
